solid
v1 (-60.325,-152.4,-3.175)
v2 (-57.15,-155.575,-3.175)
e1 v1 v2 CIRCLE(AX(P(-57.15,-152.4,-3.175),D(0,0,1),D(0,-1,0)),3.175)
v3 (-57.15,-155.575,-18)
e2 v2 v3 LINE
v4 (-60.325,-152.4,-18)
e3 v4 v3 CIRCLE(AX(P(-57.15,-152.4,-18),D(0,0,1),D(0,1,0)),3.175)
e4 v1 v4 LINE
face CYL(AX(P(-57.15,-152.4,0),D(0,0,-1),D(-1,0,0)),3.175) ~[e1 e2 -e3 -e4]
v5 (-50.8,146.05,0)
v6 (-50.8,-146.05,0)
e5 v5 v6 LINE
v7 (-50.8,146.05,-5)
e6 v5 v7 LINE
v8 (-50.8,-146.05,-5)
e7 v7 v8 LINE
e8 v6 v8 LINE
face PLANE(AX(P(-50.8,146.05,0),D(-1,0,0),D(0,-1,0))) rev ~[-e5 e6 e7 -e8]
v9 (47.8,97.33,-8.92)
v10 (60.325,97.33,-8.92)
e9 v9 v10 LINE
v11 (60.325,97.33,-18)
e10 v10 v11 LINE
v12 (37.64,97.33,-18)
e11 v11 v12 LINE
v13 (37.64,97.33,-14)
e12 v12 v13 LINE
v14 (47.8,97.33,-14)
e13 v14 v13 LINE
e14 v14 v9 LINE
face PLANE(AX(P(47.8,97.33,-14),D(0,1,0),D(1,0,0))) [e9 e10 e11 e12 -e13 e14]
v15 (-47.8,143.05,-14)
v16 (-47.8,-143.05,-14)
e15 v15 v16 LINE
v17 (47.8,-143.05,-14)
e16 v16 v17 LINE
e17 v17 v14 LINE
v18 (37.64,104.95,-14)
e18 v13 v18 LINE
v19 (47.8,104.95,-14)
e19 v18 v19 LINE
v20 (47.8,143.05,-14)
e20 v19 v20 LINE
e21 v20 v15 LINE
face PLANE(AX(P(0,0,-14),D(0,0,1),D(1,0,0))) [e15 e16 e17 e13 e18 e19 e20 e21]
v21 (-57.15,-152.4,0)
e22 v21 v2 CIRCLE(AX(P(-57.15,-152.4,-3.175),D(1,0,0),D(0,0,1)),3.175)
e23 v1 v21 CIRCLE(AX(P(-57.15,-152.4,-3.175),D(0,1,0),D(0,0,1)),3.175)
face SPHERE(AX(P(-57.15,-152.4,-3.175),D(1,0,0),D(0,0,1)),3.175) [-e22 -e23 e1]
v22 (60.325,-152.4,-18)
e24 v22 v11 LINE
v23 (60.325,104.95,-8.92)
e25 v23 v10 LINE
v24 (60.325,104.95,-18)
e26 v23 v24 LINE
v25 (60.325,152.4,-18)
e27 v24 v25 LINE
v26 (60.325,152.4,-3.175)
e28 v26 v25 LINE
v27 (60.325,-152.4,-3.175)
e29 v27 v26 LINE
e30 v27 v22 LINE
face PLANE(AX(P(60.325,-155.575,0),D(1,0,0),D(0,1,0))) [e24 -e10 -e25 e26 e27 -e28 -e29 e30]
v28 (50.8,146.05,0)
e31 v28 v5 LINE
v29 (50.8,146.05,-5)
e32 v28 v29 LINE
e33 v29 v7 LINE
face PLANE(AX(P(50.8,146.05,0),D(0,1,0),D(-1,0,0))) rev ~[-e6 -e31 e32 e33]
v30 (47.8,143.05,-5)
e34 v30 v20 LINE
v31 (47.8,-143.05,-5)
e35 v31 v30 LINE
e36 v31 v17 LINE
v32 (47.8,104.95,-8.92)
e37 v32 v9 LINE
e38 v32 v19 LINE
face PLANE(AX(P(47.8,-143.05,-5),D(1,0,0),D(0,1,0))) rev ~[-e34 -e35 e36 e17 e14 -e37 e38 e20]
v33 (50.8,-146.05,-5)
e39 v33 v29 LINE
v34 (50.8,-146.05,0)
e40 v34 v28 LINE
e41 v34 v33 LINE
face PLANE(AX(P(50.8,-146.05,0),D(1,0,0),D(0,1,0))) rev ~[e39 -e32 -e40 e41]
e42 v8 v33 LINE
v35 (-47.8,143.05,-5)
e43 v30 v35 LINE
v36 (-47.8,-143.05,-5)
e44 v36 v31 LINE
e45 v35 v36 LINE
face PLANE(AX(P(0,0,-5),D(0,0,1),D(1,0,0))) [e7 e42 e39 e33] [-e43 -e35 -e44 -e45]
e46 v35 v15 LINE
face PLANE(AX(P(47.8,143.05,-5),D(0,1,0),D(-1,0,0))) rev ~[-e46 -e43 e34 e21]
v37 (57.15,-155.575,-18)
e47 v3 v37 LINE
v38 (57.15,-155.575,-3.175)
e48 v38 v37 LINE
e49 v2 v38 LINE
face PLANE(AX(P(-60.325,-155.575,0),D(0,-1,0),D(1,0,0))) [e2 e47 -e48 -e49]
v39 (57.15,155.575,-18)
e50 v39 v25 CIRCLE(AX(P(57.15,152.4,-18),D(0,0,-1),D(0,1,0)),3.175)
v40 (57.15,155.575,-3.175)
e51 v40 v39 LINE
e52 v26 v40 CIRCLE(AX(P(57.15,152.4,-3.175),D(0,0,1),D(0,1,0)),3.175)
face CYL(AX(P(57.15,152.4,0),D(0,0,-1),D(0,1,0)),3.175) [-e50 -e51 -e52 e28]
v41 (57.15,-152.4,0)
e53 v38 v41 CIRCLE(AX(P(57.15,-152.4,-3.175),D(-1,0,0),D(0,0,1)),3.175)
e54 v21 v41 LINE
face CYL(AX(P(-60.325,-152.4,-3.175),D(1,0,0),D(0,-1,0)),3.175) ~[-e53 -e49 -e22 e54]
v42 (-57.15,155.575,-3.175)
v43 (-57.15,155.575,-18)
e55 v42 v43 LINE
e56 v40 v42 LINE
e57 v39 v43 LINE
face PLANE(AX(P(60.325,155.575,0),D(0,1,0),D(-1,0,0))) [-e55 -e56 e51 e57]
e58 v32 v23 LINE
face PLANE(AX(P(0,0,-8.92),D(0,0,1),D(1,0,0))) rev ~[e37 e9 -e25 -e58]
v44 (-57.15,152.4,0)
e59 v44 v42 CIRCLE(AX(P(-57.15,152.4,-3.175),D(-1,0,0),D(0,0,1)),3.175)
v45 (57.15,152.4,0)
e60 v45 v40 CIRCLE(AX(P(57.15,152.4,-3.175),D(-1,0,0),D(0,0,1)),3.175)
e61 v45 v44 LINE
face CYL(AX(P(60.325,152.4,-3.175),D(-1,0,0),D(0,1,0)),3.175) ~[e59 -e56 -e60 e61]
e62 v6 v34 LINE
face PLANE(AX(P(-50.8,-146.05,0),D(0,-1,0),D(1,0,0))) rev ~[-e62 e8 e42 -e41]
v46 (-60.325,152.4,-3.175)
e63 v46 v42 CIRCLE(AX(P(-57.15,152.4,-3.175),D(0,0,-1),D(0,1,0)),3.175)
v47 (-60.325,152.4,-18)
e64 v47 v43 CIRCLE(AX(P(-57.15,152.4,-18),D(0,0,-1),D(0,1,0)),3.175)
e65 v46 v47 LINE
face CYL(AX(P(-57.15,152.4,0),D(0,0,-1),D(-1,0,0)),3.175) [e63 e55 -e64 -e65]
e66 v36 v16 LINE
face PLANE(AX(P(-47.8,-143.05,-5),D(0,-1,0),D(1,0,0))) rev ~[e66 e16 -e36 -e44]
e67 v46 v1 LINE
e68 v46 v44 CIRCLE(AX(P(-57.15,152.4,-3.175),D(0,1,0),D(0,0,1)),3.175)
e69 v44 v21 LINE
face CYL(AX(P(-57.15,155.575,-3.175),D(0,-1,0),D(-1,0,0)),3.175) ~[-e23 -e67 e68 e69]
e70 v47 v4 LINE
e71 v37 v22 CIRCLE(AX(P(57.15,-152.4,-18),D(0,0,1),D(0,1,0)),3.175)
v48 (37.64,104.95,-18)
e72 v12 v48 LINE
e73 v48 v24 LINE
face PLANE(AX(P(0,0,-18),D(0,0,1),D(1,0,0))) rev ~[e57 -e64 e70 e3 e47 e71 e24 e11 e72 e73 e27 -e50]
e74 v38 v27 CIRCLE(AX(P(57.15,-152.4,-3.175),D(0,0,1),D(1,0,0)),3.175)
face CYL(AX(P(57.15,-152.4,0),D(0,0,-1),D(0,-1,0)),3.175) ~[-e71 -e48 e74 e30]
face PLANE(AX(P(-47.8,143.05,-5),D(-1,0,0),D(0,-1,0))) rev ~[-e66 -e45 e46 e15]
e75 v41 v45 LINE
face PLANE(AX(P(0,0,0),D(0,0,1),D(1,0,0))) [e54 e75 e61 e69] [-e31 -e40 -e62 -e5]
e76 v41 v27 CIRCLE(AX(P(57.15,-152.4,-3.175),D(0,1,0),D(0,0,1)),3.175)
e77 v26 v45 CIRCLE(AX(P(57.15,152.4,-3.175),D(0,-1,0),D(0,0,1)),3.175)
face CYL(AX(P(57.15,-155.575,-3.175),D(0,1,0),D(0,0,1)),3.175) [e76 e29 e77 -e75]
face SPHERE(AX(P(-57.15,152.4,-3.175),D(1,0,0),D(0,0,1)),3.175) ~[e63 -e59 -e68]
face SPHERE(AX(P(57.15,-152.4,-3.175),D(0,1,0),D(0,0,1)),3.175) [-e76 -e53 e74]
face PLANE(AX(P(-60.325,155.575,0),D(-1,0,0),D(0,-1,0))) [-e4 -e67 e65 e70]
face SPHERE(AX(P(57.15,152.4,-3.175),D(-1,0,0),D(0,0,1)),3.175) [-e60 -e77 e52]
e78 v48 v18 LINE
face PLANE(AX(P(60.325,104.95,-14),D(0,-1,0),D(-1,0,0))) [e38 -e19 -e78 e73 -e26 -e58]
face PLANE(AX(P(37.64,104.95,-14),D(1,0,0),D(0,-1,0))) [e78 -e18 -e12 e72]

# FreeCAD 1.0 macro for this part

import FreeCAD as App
import Part
import Sketcher
from FreeCAD import Vector
Q = App.Units.Quantity


def edges_at(feature, points):
    """Names of the edges that pass closest to the given points."""
    edges = feature.Shape.Edges
    near = lambda p: min(range(len(edges)), key=lambda i: edges[i].distToShape(Part.Vertex(*p))[0])
    return sorted({f"Edge{near(p) + 1}" for p in points})


def add_polygon(sketch, points):
    """Adds a closed chain of lines whose ends are joined by coincident constraints."""
    first, n = sketch.GeometryCount, len(points)
    for a, b in zip(points, points[1:] + points[:1]):
        sketch.addGeometry(Part.LineSegment(App.Vector(*a, 0), App.Vector(*b, 0)), False)
    for i in range(n):
        sketch.addConstraint(Sketcher.Constraint("Coincident", first + i, 2, first + (i + 1) % n, 1))

doc = App.newDocument("Part")
body = doc.addObject("PartDesign::Body", "Body")

# Sketch on XY plane
sketch1 = doc.addObject("Sketcher::SketchObject", "Sketch")
body.addObject(sketch1)
sketch1.AttachmentSupport = (doc.XY_Plane, [""])
sketch1.MapMode = "FlatFace"
add_polygon(sketch1, [(-60, 156), (-60, -156), (60, -156), (60, 156)])  # lines 0-3
sketch1.addConstraint(Sketcher.Constraint("Vertical", 0))
sketch1.addConstraint(Sketcher.Constraint("Horizontal", 1))
sketch1.addConstraint(Sketcher.Constraint("Vertical", 2))
sketch1.addConstraint(Sketcher.Constraint("Horizontal", 3))
sketch1.addConstraint(Sketcher.Constraint("Symmetric", 0, 2, 2, 2, -1, 1))
sketch1.addConstraint(Sketcher.Constraint("DistanceX", 1, 1, 1, 2, Q("4.75 in")))
sketch1.addConstraint(Sketcher.Constraint("DistanceY", 0, 2, 0, 1, Q("12.25 in")))
pad1 = doc.addObject("PartDesign::Pad", "Pad")
body.addObject(pad1)
pad1.Profile = sketch1
pad1.Length = 18
pad1.Reversed = True

# Sketch on XY plane
sketch2 = doc.addObject("Sketcher::SketchObject", "Sketch001")
body.addObject(sketch2)
sketch2.AttachmentSupport = (doc.XY_Plane, [""])
sketch2.MapMode = "FlatFace"
add_polygon(sketch2, [(-51, 146), (-51, -146), (51, -146), (51, 146)])  # lines 0-3
sketch2.addConstraint(Sketcher.Constraint("Vertical", 0))
sketch2.addConstraint(Sketcher.Constraint("Horizontal", 1))
sketch2.addConstraint(Sketcher.Constraint("Vertical", 2))
sketch2.addConstraint(Sketcher.Constraint("Horizontal", 3))
sketch2.addConstraint(Sketcher.Constraint("Symmetric", 0, 2, 2, 2, -1, 1))
sketch2.addConstraint(Sketcher.Constraint("DistanceX", 1, 1, 1, 2, Q("4 in")))
sketch2.addConstraint(Sketcher.Constraint("DistanceY", 0, 2, 0, 1, Q("11.5 in")))
pocket1 = doc.addObject("PartDesign::Pocket", "Pocket")
body.addObject(pocket1)
pocket1.Profile = sketch2
pocket1.Length = 5

# Sketch on XY plane
sketch3 = doc.addObject("Sketcher::SketchObject", "Sketch002")
body.addObject(sketch3)
sketch3.AttachmentSupport = (doc.XY_Plane, [""])
sketch3.MapMode = "FlatFace"
sketch3.AttachmentOffset = App.Placement(Vector(0, 0, -5), App.Rotation())
add_polygon(sketch3, [(-48, -143), (48, -143), (48, 143), (-48, 143)])  # lines 0-3
sketch3.addConstraint(Sketcher.Constraint("Horizontal", 0))
sketch3.addConstraint(Sketcher.Constraint("Vertical", 1))
sketch3.addConstraint(Sketcher.Constraint("Horizontal", 2))
sketch3.addConstraint(Sketcher.Constraint("Vertical", 3))
sketch3.addConstraint(Sketcher.Constraint("Symmetric", 0, 2, 2, 2, -1, 1))
sketch3.addConstraint(Sketcher.Constraint("DistanceX", 0, 1, 0, 2, 95.6))
sketch3.addConstraint(Sketcher.Constraint("DistanceY", 1, 1, 1, 2, 286.1))
pocket2 = doc.addObject("PartDesign::Pocket", "Pocket001")
body.addObject(pocket2)
pocket2.Profile = sketch3
pocket2.Length = 9

# Sketch on XY plane
sketch4 = doc.addObject("Sketcher::SketchObject", "Sketch003")
body.addObject(sketch4)
sketch4.AttachmentSupport = (doc.XY_Plane, [""])
sketch4.MapMode = "FlatFace"
sketch4.AttachmentOffset = App.Placement(Vector(0, 0, -14), App.Rotation())
add_polygon(sketch4, [(60, 105), (38, 105), (38, 97), (60, 97)])  # lines 0-3
sketch4.addConstraint(Sketcher.Constraint("Horizontal", 0))
sketch4.addConstraint(Sketcher.Constraint("Vertical", 1))
sketch4.addConstraint(Sketcher.Constraint("Horizontal", 2))
sketch4.addConstraint(Sketcher.Constraint("Vertical", 3))
sketch4.addConstraint(Sketcher.Constraint("DistanceY", 1, 2, 1, 1, Q("0.3 in")))
sketch4.addConstraint(Sketcher.Constraint("DistanceX", 0, 2, 0, 1, Q("0.8931 in")))
sketch4.addConstraint(Sketcher.Constraint("DistanceX", -1, 1, 2, 2, Q("2.375 in")))
sketch4.addConstraint(Sketcher.Constraint("DistanceY", -1, 1, 0, 2, Q("4.1319 in")))
pocket3 = doc.addObject("PartDesign::Pocket", "Pocket002")
body.addObject(pocket3)
pocket3.Profile = sketch4
pocket3.Length = Q("0.4 in")
pocket3.Midplane = True
doc.recompute()

fillet = doc.addObject("PartDesign::Fillet", "Fillet")
body.addObject(fillet)
fillet.Base = (pocket3, edges_at(pocket3, [
    (0, 155.575, 0),
    (60.325, 0, 0),
    (0, -155.575, 0),
    (-60.325, 0, 0),
    (-60.325, 155.575, -9),
    (-60.325, -155.575, -9),
    (60.325, -155.575, -9),
    (60.325, 155.575, -9),
]))
fillet.Radius = Q("0.125 in")

doc.recompute()
